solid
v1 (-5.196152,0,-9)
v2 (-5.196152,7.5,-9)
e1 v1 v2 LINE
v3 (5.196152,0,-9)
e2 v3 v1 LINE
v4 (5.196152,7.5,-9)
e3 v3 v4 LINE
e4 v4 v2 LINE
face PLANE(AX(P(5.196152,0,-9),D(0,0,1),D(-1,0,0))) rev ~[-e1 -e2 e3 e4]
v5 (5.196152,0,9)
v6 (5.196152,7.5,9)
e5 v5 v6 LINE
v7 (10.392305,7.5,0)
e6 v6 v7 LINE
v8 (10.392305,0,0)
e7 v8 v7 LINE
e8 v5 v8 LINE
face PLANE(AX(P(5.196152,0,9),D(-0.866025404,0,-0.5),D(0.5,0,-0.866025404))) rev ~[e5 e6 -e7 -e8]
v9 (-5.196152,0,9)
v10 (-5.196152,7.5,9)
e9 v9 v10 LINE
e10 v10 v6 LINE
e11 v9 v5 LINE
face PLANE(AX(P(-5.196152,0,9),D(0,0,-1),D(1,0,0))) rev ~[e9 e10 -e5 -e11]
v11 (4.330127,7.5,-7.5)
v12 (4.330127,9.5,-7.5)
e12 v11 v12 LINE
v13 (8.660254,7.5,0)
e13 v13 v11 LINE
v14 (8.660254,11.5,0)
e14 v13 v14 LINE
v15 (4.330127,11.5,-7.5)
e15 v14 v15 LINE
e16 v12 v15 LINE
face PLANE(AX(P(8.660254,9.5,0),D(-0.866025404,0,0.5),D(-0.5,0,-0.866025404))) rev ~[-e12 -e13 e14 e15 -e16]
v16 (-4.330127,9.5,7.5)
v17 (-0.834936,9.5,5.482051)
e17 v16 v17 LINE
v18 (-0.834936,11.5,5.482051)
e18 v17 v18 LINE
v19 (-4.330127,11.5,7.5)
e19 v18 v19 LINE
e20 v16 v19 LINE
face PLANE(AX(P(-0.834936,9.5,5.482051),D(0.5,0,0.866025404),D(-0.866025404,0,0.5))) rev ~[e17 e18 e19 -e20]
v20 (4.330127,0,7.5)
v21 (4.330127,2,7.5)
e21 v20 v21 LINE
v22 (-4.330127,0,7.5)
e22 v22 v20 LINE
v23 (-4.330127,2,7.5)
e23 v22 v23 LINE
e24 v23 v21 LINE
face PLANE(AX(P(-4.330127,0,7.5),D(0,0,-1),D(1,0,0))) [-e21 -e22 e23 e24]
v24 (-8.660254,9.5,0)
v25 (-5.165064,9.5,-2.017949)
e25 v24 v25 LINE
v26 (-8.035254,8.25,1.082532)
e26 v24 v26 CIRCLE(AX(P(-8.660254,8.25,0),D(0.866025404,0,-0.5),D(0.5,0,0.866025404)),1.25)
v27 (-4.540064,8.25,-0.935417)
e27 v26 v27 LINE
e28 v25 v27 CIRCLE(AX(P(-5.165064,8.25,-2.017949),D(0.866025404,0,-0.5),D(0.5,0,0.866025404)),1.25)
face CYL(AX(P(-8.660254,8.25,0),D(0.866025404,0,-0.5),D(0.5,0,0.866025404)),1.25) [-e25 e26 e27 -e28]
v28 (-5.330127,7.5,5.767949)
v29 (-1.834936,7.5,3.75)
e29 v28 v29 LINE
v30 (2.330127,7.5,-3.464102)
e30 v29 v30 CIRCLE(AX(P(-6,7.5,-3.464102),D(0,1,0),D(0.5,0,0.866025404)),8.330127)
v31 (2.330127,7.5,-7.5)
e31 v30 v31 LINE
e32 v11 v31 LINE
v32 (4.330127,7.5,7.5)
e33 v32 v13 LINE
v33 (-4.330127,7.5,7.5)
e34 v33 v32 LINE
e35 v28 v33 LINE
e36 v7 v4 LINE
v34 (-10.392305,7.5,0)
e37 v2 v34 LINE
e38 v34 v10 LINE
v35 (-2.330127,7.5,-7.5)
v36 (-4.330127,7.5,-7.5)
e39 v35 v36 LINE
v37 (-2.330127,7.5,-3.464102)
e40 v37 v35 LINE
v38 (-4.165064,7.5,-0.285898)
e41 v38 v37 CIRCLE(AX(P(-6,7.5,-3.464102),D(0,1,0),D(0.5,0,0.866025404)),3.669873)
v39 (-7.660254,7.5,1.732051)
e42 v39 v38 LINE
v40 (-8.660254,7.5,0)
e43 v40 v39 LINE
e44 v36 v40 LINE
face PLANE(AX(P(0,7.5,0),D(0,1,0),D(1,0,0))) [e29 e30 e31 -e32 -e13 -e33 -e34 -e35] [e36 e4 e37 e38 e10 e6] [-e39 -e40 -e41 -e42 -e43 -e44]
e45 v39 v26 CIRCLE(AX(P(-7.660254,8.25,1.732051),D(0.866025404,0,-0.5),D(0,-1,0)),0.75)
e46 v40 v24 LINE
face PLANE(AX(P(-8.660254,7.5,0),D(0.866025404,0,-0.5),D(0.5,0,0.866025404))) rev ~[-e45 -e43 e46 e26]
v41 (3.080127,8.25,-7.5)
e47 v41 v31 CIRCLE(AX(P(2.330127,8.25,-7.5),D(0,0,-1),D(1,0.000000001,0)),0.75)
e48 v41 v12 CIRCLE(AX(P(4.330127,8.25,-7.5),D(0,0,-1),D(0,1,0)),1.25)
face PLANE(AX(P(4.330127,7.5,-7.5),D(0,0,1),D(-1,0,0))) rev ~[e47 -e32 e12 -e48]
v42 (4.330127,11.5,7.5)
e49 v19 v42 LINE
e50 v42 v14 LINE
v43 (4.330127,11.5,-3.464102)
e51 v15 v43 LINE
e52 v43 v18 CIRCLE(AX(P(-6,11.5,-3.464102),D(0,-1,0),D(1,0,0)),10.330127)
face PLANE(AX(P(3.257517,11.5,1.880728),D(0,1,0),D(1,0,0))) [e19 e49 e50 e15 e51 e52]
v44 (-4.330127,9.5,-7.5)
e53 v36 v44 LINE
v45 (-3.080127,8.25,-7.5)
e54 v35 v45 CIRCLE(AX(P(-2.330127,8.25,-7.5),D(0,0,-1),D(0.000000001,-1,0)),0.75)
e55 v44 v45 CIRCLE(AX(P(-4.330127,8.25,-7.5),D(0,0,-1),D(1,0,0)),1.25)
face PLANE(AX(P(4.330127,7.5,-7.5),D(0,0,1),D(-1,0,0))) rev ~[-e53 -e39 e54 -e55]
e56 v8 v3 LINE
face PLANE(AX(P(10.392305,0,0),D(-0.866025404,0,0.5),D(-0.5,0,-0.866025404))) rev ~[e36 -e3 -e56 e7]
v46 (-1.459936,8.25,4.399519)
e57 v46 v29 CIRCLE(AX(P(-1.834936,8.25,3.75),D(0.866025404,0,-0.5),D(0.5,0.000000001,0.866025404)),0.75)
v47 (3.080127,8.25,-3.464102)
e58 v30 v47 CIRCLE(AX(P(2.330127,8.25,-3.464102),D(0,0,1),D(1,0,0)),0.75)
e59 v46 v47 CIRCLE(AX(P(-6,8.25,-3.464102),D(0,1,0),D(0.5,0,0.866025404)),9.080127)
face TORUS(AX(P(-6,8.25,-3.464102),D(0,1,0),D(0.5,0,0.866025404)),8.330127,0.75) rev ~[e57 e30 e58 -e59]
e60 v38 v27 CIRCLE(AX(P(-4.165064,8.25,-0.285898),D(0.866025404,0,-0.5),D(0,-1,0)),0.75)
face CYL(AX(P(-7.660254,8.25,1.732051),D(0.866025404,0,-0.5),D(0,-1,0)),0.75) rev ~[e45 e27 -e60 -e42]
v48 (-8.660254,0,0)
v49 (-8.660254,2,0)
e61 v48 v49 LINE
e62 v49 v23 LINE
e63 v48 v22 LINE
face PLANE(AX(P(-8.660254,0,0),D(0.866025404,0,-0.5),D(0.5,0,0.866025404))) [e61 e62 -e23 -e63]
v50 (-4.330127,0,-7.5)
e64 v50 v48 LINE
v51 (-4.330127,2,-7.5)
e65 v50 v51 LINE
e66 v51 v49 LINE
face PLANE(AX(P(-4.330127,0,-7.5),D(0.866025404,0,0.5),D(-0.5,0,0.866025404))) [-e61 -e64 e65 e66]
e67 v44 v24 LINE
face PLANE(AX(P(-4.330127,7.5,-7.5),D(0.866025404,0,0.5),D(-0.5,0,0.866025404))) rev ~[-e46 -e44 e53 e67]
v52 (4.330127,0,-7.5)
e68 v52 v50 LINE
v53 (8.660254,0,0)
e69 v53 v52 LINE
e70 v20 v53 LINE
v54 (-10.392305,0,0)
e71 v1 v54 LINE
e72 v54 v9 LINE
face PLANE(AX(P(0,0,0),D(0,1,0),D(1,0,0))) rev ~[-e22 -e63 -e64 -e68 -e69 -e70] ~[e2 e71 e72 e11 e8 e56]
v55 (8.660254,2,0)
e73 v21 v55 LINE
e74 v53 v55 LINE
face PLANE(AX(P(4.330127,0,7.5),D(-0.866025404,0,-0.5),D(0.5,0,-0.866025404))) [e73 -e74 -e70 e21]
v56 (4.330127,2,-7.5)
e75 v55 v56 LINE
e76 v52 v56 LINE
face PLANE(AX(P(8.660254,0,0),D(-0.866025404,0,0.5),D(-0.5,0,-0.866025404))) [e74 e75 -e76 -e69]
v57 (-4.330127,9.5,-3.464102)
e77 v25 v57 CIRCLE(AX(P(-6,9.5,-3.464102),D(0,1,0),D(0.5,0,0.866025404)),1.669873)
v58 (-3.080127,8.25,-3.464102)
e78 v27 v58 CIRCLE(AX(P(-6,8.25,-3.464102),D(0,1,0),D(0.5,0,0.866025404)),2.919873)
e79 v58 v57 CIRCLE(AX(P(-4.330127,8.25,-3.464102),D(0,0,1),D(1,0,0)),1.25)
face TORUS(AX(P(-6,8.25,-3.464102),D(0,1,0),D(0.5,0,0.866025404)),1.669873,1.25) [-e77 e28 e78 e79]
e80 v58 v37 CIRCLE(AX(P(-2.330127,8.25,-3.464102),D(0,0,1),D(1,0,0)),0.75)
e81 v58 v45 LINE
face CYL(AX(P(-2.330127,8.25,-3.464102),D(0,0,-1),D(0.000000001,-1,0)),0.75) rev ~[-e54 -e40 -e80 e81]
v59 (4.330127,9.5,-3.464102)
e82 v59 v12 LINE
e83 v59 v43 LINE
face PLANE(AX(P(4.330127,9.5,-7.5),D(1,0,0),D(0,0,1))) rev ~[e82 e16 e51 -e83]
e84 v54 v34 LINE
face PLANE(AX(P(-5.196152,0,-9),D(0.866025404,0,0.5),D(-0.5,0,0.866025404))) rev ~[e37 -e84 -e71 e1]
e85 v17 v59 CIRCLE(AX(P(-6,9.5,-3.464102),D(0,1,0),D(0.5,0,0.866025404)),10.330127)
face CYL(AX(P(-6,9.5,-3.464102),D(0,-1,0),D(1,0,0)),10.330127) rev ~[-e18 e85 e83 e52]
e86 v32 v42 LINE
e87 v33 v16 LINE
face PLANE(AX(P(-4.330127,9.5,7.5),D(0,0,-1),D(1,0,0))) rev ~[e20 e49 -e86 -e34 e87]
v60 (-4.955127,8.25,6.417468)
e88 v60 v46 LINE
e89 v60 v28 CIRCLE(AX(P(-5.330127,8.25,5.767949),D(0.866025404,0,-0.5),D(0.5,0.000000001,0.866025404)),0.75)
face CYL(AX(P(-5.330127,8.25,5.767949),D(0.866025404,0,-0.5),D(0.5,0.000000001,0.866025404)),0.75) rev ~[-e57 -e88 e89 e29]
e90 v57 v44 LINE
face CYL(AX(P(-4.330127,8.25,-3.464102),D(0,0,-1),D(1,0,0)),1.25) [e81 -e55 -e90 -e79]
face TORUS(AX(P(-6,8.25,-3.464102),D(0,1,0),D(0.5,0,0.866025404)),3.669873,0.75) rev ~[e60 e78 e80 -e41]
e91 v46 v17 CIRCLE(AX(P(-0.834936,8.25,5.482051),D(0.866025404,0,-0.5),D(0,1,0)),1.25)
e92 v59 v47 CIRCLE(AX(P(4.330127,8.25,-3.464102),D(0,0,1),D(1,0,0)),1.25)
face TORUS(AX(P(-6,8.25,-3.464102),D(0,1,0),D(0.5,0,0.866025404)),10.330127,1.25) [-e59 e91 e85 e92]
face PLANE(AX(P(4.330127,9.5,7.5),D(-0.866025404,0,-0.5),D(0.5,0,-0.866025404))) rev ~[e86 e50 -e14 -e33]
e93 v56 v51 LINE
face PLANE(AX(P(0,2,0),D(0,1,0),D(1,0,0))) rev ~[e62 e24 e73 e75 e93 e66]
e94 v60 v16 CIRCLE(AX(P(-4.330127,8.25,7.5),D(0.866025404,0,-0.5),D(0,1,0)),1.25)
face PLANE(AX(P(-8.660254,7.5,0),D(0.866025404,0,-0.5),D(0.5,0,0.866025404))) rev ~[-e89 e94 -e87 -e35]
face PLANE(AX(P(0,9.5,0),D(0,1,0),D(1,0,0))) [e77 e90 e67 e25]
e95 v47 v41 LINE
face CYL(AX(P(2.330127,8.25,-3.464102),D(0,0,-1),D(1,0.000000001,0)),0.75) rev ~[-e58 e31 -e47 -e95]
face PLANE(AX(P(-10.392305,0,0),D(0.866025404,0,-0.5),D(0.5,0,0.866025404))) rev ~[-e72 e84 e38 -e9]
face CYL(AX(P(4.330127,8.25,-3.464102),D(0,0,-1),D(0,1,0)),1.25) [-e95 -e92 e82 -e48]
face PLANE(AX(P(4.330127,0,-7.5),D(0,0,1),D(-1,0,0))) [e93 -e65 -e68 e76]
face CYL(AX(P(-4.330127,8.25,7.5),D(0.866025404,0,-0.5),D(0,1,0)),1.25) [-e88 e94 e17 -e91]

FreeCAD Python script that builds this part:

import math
import FreeCAD as App
import Part
import Sketcher
from FreeCAD import Vector
Q = App.Units.Quantity


def add_polygon(sketch, points):
    """Adds a closed chain of lines whose ends are joined by coincident constraints."""
    first, n = sketch.GeometryCount, len(points)
    for a, b in zip(points, points[1:] + points[:1]):
        sketch.addGeometry(Part.LineSegment(App.Vector(*a, 0), App.Vector(*b, 0)), False)
    for i in range(n):
        sketch.addConstraint(Sketcher.Constraint("Coincident", first + i, 2, first + (i + 1) % n, 1))

doc = App.newDocument("Part")
params = doc.addObject("Spreadsheet::Sheet", "Params")
for row, (alias, value) in enumerate([
    ("pad1_length", "7.5 mm"),
    ("pocket1_length", "2 mm"),
    ("pad2_length", "2 mm"),
    ("sketch4_radius", "1.25 mm"),
    ("sketch4_radius2", "0.75 mm"),
    ("sketch5_radius", "6 mm"),
    ("pad3_length", "2 mm"),
], start=1):
    params.set(f"A{row}", alias)
    params.set(f"B{row}", "=" + value)
    params.setAlias(f"B{row}", alias)

body = doc.addObject("PartDesign::Body", "Body")

sketch1 = body.newObject("Sketcher::SketchObject", "Sketch")
sketch1.AttachmentSupport = (doc.getObject("XZ_Plane"), [""])
sketch1.MapMode = "FlatFace"
add_polygon(sketch1, [(-5, 9), (5, 9), (10, 0), (5, -9), (-5, -9), (-10, 0)])
sketch1.addConstraint([
    Sketcher.Constraint("Horizontal", 0),
    Sketcher.Constraint("Horizontal", 3),
    Sketcher.Constraint("Symmetric", 0, 2, 3, 2, -1, 1),
    Sketcher.Constraint("Symmetric", 1, 2, 4, 2, -1, 1),
    Sketcher.Constraint("PointOnObject", 1, 2, -1),
    Sketcher.Constraint("Parallel", 2, 5),
    Sketcher.Constraint("Vertical", 0, 2, 2, 2),
    Sketcher.Constraint("Angle", 1, Q("-60 deg")),
    Sketcher.Constraint("DistanceY", -1, 1, 0, 2, 9.0),
    Sketcher.Constraint("DistanceX", 0, 1, 0, 2, 10.392305),
])
pad1 = body.newObject("PartDesign::Pad", "Pad")
pad1.Profile = sketch1
pad1.setExpression("Length", "Params.pad1_length")
pad1.Reversed = True

sketch2 = body.newObject("Sketcher::SketchObject", "Sketch001")
sketch2.AttachmentSupport = (doc.getObject("XZ_Plane"), [""])
sketch2.MapMode = "FlatFace"
add_polygon(sketch2, [(-4, 8), (4, 8), (9, 0), (4, -8), (-4, -8), (-9, 0)])
sketch2.addConstraint([
    Sketcher.Constraint("Horizontal", 0),
    Sketcher.Constraint("Horizontal", 3),
    Sketcher.Constraint("Symmetric", 0, 2, 3, 2, -1, 1),
    Sketcher.Constraint("Symmetric", 1, 2, 4, 2, -1, 1),
    Sketcher.Constraint("PointOnObject", 1, 2, -1),
    Sketcher.Constraint("Parallel", 2, 5),
    Sketcher.Constraint("Vertical", 0, 2, 2, 2),
    Sketcher.Constraint("Angle", 1, Q("-60 deg")),
    Sketcher.Constraint("DistanceY", 2, 2, 0, 2, 15.0),
    Sketcher.Constraint("DistanceX", 0, 1, 0, 2, 8.660254),
])
pocket1 = body.newObject("PartDesign::Pocket", "Pocket")
pocket1.Profile = sketch2
pocket1.setExpression("Length", "Params.pocket1_length")

sketch3 = body.newObject("Sketcher::SketchObject", "Sketch002")
sketch3.AttachmentSupport = (doc.getObject("XZ_Plane"), [""])
sketch3.MapMode = "FlatFace"
sketch3.AttachmentOffset = App.Placement(Vector(0, 0, -7.5), App.Rotation())
add_polygon(sketch3, [(9, 0), (4, -8), (-4, -8), (-9, 0), (-4, 8), (4, 8)])
sketch3.addConstraint([
    Sketcher.Constraint("Horizontal", 1),
    Sketcher.Constraint("Horizontal", 4),
    Sketcher.Constraint("Symmetric", 0, 2, 3, 2, -1, 1),
    Sketcher.Constraint("Symmetric", 2, 2, 5, 2, -1, 1),
    Sketcher.Constraint("PointOnObject", 2, 2, -1),
    Sketcher.Constraint("Parallel", 2, 5),
    Sketcher.Constraint("Vertical", 1, 2, 3, 2),
    Sketcher.Constraint("Angle", 0, Q("-120 deg")),
    Sketcher.Constraint("DistanceY", 1, 2, 3, 2, 15.0),
    Sketcher.Constraint("DistanceX", 1, 2, 1, 1, 8.660254),
])
pad2 = body.newObject("PartDesign::Pad", "Pad001")
pad2.Profile = sketch3
pad2.setExpression("Length", "Params.pad2_length")
pad2.Reversed = True

sketch4 = body.newObject("Sketcher::SketchObject", "Sketch003")
sketch4.Placement = App.Placement(Vector(-6.495191, 0, 3.75), App.Rotation(Vector(0.5, 0, 0.866025404), Vector(0, 1, 0), Vector(-0.866025404, 0, 0.5), "ZXY"))
sketch4.addGeometry([
    Part.LineSegment(Vector(4.3, 9.5, 0), Vector(-4.3, 9.5, 0)),
    Part.ArcOfCircle(Part.Circle(Vector(-4.3, 8.3, 0), Vector(0, 0, 1), 1.2), math.radians(0), math.radians(90)),
    Part.ArcOfCircle(Part.Circle(Vector(-2.3, 8.3, 0), Vector(0, 0, 1), 0.8), math.radians(180), math.radians(270)),
    Part.LineSegment(Vector(-2.3, 7.5, 0), Vector(2.3, 7.5, 0)),
    Part.ArcOfCircle(Part.Circle(Vector(2.3, 8.3, 0), Vector(0, 0, 1), 0.8), math.radians(-90), math.radians(0)),
    Part.ArcOfCircle(Part.Circle(Vector(4.3, 8.3, 0), Vector(0, 0, 1), 1.2), math.radians(90), math.radians(180)),
], False)
sketch4.addConstraint([
    Sketcher.Constraint("Tangent", 0, 2, 1, 2),
    Sketcher.Constraint("Tangent", 1, 1, 2, 1),
    Sketcher.Constraint("Tangent", 2, 2, 3, 1),
    Sketcher.Constraint("Tangent", 3, 2, 4, 1),
    Sketcher.Constraint("Tangent", 4, 2, 5, 2),
    Sketcher.Constraint("Tangent", 5, 1, 0, 1),
    Sketcher.Constraint("Horizontal", 0),
    Sketcher.Constraint("Horizontal", 3),
    Sketcher.Constraint("Equal", 2, 4),
    Sketcher.Constraint("Equal", 1, 5),
    Sketcher.Constraint("Horizontal", 1, 3, 2, 3),
    Sketcher.Constraint("Radius", 1, 1.25),
    Sketcher.Constraint("Radius", 2, 0.75),
    Sketcher.Constraint("DistanceY", -1, 1, 0, 2, 9.5),
    Sketcher.Constraint("DistanceX", 0, 2, 0, 1, 8.660254),
    Sketcher.Constraint("DistanceX", 1, 3, -1, 1, 4.330127),
])
sketch4.setExpression("Constraints[11]", "Params.sketch4_radius")
sketch4.setExpression("Constraints[12]", "Params.sketch4_radius2")

sketch5 = body.newObject("Sketcher::SketchObject", "Sketch004")
sketch5.AttachmentSupport = (doc.getObject("XZ_Plane"), [""])
sketch5.MapMode = "FlatFace"
sketch5.AttachmentOffset = App.Placement(Vector(0, 0, -9.5), App.Rotation())
sketch5.addGeometry([
    Part.LineSegment(Vector(-6.5, 3.8, 0), Vector(-3, 1.7, 0)),
    Part.ArcOfCircle(Part.Circle(Vector(-6, -3.5, 0), Vector(0, 0, 1), 6), math.radians(0), math.radians(60)),
    Part.LineSegment(Vector(0, -3.5, 0), Vector(0, -7.5, 0)),
], False)
sketch5.addConstraint([
    Sketcher.Constraint("Tangent", 0, 2, 1, 2),
    Sketcher.Constraint("Tangent", 1, 1, 2, 1),
    Sketcher.Constraint("Vertical", 2),
    Sketcher.Constraint("PointOnObject", 1, 1, -2),
    Sketcher.Constraint("Radius", 1, 6.0),
    Sketcher.Constraint("Angle", 0, Q("-30 deg")),
    Sketcher.Constraint("DistanceY", 2, 2, -1, 1, 7.5),
    Sketcher.Constraint("DistanceY", -1, 1, 0, 1, 3.75),
    Sketcher.Constraint("DistanceY", 2, 2, 2, 1, 4.035898),
])
sketch5.setExpression("Constraints[4]", "Params.sketch5_radius")
doc.recompute()

subtractivepipe = body.newObject("PartDesign::SubtractivePipe", "SubtractivePipe")
subtractivepipe.Profile = sketch4
subtractivepipe.Spine = (sketch5, ["Edge1", "Edge2", "Edge3"])

sketch6 = body.newObject("Sketcher::SketchObject", "Sketch005")
sketch6.AttachmentSupport = (doc.getObject("XZ_Plane"), [""])
sketch6.MapMode = "FlatFace"
sketch6.AttachmentOffset = App.Placement(Vector(0, 0, -9.5), App.Rotation())
sketch6.addGeometry([
    Part.LineSegment(Vector(-0.8, 5.5, 0), Vector(-4.3, 7.5, 0)),
    Part.LineSegment(Vector(-4.3, 7.5, 0), Vector(4.3, 7.5, 0)),
    Part.LineSegment(Vector(4.3, 7.5, 0), Vector(8.7, 0, 0)),
    Part.LineSegment(Vector(8.7, 0, 0), Vector(4.3, -7.5, 0)),
    Part.LineSegment(Vector(4.3, -7.5, 0), Vector(4.3, -3.5, 0)),
    Part.ArcOfCircle(Part.Circle(Vector(-6, -3.5, 0), Vector(0, 0, 1), 10.3), math.radians(0), math.radians(60)),
], False)
sketch6.addConstraint([
    Sketcher.Constraint("Coincident", 0, 2, 1, 1),
    Sketcher.Constraint("Coincident", 1, 2, 2, 1),
    Sketcher.Constraint("Coincident", 2, 2, 3, 1),
    Sketcher.Constraint("Coincident", 3, 2, 4, 1),
    Sketcher.Constraint("Tangent", 4, 2, 5, 1),
    Sketcher.Constraint("Tangent", 5, 2, 0, 1),
    Sketcher.Constraint("Horizontal", 1),
    Sketcher.Constraint("Vertical", 4),
    Sketcher.Constraint("Symmetric", 0, 2, 3, 2, -1, 1),
    Sketcher.Constraint("PointOnObject", 2, 2, -1),
    Sketcher.Constraint("Perpendicular", 0, 3),
    Sketcher.Constraint("Vertical", 1, 2, 3, 2),
    Sketcher.Constraint("Angle", 0, Q("150 deg")),
    Sketcher.Constraint("DistanceX", 5, 3, -1, 1, 6.0),
    Sketcher.Constraint("DistanceY", 3, 2, 1, 2, 15.0),
    Sketcher.Constraint("DistanceY", 4, 1, 4, 2, 4.035898),
])
pad3 = body.newObject("PartDesign::Pad", "Pad002")
pad3.Profile = sketch6
pad3.setExpression("Length", "Params.pad3_length")
pad3.Reversed = True

doc.recompute()
